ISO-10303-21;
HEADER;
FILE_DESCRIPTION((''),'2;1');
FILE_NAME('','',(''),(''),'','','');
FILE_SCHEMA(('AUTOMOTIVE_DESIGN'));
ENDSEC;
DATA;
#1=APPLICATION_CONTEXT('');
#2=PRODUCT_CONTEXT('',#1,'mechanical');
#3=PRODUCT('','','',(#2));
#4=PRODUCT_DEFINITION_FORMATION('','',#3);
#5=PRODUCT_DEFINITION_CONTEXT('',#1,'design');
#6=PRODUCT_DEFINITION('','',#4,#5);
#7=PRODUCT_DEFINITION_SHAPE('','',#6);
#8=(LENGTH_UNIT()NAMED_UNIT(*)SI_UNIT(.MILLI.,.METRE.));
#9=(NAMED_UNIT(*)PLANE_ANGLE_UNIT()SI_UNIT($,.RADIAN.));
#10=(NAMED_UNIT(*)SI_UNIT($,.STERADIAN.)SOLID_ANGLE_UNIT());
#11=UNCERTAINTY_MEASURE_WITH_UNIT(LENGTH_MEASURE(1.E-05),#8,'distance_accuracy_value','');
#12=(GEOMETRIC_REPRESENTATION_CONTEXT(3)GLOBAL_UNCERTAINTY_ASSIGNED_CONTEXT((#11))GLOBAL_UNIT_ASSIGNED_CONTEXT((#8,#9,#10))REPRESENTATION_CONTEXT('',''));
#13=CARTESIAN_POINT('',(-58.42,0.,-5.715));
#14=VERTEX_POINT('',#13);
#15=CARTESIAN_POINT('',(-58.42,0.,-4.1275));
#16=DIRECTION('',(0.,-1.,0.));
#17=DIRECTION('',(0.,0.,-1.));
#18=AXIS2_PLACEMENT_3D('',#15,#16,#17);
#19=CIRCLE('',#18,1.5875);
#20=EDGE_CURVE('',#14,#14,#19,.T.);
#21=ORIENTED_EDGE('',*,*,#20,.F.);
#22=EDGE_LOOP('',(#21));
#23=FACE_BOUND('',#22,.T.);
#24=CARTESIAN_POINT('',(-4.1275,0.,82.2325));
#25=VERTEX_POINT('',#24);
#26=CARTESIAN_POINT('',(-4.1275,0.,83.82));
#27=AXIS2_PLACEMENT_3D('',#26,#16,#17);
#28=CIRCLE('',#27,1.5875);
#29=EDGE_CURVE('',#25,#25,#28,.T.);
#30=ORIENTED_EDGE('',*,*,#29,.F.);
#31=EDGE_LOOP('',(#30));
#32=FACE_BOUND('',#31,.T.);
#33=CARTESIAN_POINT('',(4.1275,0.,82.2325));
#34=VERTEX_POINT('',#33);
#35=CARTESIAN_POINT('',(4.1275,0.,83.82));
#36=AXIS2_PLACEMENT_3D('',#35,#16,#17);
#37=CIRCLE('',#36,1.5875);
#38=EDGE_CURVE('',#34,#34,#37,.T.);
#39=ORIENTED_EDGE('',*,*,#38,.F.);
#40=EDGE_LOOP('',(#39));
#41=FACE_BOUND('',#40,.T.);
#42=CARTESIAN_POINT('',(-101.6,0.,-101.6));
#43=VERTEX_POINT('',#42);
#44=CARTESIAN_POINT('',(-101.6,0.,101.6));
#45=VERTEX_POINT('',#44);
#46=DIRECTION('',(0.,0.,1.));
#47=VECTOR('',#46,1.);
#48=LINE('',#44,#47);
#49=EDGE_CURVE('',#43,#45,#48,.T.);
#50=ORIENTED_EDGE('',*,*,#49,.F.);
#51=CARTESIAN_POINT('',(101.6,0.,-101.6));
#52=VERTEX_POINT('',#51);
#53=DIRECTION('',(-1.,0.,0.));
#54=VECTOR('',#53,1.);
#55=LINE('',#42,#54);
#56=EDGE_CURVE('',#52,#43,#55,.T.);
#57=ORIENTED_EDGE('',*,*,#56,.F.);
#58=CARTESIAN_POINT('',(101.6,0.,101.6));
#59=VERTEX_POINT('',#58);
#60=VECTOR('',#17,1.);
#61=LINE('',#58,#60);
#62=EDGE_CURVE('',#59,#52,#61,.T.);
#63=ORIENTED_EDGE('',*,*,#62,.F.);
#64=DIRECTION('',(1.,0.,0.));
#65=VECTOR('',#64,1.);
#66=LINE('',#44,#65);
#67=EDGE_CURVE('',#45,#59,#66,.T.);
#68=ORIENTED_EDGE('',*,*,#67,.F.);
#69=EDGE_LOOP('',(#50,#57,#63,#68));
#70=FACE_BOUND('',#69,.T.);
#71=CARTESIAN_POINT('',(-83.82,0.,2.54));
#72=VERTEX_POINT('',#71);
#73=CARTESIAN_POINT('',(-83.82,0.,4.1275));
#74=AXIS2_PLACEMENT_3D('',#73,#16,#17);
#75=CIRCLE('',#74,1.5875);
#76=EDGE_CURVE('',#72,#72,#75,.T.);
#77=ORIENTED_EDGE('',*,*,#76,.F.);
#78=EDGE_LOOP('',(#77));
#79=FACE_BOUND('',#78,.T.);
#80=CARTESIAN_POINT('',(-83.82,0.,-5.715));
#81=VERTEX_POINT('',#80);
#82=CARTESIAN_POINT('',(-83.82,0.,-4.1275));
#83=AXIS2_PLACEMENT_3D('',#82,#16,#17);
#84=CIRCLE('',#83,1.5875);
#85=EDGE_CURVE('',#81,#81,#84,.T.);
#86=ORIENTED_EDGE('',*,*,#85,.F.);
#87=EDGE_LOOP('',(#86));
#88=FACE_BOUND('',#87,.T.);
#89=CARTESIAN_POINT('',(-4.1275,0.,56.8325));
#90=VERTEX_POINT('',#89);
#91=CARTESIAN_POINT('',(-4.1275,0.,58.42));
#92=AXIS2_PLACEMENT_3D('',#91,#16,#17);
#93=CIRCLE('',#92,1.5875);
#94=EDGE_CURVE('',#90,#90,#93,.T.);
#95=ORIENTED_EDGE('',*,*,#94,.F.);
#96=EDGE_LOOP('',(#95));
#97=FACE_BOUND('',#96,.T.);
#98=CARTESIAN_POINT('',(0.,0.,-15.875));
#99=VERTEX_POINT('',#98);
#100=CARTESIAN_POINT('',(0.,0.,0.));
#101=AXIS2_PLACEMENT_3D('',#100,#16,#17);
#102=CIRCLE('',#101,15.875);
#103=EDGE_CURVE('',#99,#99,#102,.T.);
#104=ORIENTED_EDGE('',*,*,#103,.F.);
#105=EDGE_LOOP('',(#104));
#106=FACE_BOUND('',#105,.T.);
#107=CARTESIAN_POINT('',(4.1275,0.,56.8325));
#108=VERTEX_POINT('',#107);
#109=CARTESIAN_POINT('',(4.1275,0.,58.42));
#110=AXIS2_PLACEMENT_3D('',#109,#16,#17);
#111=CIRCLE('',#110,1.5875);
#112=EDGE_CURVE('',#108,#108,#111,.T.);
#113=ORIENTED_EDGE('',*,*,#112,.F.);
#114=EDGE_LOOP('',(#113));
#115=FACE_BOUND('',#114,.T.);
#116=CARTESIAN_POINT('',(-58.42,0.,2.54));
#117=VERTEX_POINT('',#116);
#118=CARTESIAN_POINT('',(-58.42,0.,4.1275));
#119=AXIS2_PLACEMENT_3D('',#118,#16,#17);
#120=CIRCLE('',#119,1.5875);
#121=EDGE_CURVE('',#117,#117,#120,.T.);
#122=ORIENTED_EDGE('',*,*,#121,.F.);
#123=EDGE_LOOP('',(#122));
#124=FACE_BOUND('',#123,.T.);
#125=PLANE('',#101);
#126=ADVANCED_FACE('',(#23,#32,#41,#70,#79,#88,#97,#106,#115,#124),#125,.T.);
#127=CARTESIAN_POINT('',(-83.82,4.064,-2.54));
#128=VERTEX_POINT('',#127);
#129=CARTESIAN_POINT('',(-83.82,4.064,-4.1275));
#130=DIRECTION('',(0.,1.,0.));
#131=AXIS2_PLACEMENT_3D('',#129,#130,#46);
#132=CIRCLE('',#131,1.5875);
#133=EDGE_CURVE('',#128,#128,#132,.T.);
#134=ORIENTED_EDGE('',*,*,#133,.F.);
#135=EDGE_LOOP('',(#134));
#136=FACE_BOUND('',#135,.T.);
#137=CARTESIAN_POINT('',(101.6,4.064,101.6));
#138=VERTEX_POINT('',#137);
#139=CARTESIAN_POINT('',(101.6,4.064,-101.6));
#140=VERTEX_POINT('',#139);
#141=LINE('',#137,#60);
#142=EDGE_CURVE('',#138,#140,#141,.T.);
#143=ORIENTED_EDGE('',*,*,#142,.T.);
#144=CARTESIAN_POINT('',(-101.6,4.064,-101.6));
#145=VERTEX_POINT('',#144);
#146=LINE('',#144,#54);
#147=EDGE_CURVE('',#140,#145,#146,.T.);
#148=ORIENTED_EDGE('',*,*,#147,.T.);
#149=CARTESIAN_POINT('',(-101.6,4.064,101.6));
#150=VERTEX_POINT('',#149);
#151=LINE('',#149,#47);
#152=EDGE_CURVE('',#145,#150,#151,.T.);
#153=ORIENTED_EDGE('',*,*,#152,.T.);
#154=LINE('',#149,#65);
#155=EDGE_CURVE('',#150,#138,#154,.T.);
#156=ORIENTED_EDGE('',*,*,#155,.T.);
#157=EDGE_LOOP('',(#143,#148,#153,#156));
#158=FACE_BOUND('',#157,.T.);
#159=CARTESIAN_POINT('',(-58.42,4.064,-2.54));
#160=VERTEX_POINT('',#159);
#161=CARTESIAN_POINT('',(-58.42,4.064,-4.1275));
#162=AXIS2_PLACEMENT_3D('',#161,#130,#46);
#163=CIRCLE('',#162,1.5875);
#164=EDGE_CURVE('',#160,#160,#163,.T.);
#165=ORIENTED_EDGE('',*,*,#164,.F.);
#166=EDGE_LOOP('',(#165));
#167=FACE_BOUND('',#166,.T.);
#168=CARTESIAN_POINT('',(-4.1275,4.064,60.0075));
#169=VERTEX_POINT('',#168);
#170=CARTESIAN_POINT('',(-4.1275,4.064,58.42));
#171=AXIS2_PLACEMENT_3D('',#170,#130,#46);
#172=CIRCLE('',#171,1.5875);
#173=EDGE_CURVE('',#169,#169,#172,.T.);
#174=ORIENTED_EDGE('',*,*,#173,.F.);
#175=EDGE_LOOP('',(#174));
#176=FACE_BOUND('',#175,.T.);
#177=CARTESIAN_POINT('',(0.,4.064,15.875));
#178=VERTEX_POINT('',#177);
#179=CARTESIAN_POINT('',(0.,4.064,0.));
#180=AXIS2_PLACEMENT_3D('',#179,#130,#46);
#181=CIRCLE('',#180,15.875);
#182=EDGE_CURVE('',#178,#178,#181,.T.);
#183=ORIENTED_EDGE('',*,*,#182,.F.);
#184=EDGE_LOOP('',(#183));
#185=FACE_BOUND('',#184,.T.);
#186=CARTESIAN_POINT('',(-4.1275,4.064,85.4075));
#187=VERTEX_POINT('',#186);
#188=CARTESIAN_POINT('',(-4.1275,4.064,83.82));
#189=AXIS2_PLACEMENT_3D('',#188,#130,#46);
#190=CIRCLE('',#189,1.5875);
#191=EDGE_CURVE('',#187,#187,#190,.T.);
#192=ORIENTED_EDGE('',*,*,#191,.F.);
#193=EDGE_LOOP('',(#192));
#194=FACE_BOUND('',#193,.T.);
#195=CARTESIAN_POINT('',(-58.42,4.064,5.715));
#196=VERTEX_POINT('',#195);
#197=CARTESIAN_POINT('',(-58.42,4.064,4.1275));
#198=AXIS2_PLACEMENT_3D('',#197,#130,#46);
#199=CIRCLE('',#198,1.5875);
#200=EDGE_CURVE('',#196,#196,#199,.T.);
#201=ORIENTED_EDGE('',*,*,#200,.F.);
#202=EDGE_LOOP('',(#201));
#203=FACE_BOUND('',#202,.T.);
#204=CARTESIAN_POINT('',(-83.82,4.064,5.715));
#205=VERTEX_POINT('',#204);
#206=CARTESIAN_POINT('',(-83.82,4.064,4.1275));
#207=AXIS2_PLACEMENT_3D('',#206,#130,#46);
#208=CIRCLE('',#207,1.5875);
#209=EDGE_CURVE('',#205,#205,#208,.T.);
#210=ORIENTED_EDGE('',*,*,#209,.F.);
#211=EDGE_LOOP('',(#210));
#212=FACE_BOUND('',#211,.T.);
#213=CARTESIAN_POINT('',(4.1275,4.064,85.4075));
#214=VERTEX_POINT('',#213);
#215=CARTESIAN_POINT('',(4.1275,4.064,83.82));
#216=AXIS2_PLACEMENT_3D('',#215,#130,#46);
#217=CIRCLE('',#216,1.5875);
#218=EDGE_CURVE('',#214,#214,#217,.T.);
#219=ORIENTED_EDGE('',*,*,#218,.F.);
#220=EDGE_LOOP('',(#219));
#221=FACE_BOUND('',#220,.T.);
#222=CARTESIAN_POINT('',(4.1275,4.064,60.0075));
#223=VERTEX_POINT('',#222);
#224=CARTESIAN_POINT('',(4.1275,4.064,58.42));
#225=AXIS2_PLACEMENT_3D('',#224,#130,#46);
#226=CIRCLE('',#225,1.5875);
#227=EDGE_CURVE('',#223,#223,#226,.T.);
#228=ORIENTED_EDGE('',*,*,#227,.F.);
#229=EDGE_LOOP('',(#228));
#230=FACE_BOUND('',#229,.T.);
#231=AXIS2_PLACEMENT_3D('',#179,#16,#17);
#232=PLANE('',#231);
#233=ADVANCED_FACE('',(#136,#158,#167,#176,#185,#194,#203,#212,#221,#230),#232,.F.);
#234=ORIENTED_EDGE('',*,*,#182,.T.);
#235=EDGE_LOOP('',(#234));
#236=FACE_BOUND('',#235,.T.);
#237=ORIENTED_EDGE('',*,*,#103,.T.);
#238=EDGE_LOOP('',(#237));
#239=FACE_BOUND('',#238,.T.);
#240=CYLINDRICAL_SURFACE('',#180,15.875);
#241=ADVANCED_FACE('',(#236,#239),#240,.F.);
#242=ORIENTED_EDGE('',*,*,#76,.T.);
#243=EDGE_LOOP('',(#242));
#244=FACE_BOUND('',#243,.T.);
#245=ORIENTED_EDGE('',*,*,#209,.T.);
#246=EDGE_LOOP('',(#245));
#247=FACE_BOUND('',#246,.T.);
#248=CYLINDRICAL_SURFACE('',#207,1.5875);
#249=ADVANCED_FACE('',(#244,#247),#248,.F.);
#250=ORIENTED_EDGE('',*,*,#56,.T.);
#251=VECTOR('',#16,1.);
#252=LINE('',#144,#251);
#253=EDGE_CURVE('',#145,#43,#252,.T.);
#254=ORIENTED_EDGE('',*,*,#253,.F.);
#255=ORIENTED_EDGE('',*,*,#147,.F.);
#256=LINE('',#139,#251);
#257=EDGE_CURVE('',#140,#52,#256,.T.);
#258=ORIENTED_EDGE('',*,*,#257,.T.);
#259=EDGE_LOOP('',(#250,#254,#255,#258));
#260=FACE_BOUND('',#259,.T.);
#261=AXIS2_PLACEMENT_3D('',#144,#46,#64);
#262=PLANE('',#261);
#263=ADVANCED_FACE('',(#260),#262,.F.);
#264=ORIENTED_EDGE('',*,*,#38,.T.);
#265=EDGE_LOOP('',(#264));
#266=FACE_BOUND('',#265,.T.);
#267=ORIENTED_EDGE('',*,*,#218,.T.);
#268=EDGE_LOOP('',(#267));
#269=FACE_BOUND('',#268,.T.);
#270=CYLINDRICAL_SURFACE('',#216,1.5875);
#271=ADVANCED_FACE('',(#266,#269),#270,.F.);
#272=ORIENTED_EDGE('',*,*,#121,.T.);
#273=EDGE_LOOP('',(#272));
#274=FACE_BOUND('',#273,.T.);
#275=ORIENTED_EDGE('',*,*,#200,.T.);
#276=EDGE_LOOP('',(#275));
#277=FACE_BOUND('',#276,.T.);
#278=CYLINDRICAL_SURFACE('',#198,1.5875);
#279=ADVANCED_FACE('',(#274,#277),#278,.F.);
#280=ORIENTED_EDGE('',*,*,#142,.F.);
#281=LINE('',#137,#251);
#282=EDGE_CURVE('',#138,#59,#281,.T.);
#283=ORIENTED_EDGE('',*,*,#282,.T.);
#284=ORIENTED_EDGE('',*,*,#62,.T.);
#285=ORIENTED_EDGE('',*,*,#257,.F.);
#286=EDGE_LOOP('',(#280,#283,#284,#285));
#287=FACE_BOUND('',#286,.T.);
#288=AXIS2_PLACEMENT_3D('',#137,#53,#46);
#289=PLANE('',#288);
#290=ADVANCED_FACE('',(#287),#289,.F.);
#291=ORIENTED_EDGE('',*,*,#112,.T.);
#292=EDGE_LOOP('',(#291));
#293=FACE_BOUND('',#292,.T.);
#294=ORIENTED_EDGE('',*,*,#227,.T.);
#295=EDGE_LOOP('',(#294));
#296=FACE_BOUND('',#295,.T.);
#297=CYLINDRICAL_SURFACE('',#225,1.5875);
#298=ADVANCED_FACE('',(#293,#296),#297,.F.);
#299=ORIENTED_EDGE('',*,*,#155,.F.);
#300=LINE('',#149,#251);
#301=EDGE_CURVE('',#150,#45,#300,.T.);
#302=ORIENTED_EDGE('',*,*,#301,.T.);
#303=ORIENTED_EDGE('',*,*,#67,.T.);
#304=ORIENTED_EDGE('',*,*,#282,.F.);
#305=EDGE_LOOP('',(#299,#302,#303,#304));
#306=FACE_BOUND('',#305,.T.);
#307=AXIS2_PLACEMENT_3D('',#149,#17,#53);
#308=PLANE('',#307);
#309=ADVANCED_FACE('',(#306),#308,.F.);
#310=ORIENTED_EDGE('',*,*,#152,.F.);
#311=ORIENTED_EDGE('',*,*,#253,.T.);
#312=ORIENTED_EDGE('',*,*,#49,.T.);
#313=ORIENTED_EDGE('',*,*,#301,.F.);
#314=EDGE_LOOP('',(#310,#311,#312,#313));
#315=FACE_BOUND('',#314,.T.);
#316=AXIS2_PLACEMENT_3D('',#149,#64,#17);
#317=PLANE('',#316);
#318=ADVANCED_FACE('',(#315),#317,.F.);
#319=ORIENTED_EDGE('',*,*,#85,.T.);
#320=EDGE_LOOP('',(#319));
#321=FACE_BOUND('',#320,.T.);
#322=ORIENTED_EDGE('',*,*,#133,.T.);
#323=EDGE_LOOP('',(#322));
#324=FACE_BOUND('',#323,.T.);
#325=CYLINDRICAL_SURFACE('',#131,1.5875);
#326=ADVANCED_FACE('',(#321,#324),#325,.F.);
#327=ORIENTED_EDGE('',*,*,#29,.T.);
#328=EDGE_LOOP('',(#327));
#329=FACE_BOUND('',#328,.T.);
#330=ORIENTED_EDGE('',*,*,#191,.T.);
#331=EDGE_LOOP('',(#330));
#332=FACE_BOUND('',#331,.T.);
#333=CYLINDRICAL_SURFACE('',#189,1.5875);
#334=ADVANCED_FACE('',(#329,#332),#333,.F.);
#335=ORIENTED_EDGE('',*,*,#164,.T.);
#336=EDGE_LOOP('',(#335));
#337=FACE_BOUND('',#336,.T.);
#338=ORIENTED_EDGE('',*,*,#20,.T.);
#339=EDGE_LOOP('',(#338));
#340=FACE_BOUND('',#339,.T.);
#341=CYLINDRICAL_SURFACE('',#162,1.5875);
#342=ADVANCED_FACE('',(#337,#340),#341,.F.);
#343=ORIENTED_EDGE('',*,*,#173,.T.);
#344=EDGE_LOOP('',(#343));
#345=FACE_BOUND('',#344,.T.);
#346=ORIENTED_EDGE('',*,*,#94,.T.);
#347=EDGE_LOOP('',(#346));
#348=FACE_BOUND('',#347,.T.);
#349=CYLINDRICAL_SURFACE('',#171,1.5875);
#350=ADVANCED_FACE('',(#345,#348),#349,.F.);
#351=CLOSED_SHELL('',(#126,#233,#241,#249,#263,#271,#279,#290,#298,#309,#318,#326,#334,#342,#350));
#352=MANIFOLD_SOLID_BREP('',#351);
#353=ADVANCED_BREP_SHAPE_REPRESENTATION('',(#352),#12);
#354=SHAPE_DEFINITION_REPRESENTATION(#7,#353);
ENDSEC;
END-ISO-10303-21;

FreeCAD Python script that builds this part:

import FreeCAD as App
import Part
import Sketcher
from FreeCAD import Vector
Q = App.Units.Quantity

doc = App.newDocument("Part")
params = doc.addObject("Spreadsheet::Sheet", "Params")
for row, (alias, value) in enumerate([
    ("sketch1_width", "8 in"),
    ("pad1_length", "0.16 in"),
    ("sketch2_diameter", "0.125 in"),
    ("hole_diameter", "0.125 in"),
    ("hole_depth", "1 in"),
    ("sketch3_diameter", "1.25 in"),
    ("hole2_diameter", "1.25 in"),
    ("hole2_depth", "1 in"),
], start=1):
    params.set(f"A{row}", alias)
    params.set(f"B{row}", "=" + value)
    params.setAlias(f"B{row}", alias)

body = doc.addObject("PartDesign::Body", "Body")

# Sketch on XZ plane
sketch1 = body.newObject("Sketcher::SketchObject", "Sketch")
sketch1.AttachmentSupport = (doc.getObject("XZ_Plane"), [""])
sketch1.MapMode = "FlatFace"
sketch1.addGeometry(Part.LineSegment(Vector(-101.6, -101.6, 0), Vector(-101.6, 101.6, 0)), False)
sketch1.addGeometry(Part.LineSegment(Vector(-101.6, 101.6, 0), Vector(101.6, 101.6, 0)), False)
sketch1.addGeometry(Part.LineSegment(Vector(101.6, 101.6, 0), Vector(101.6, -101.6, 0)), False)
sketch1.addGeometry(Part.LineSegment(Vector(101.6, -101.6, 0), Vector(-101.6, -101.6, 0)), False)
sketch1.addConstraint(Sketcher.Constraint("Coincident", 0, 2, 1, 1))
sketch1.addConstraint(Sketcher.Constraint("Coincident", 1, 2, 2, 1))
sketch1.addConstraint(Sketcher.Constraint("Coincident", 2, 2, 3, 1))
sketch1.addConstraint(Sketcher.Constraint("Coincident", 3, 2, 0, 1))
sketch1.addConstraint(Sketcher.Constraint("Vertical", 0))
sketch1.addConstraint(Sketcher.Constraint("Horizontal", 1))
sketch1.addConstraint(Sketcher.Constraint("Vertical", 2))
sketch1.addConstraint(Sketcher.Constraint("Horizontal", 3))
sketch1.addConstraint(Sketcher.Constraint("Symmetric", 0, 2, 2, 2, -1, 1))
sketch1.addConstraint(Sketcher.Constraint("Equal", 3, 0))
sketch1.addConstraint(Sketcher.Constraint("DistanceX", 1, 1, 1, 2, Q("8 in")))
sketch1.setExpression("Constraints[10]", "Params.sketch1_width")
pad1 = body.newObject("PartDesign::Pad", "Pad")
pad1.Profile = sketch1
pad1.setExpression("Length", "Params.pad1_length")
pad1.Reversed = True

# Sketch on XZ plane
sketch2 = body.newObject("Sketcher::SketchObject", "Sketch001")
sketch2.AttachmentSupport = (doc.getObject("XZ_Plane"), [""])
sketch2.MapMode = "FlatFace"
sketch2.AttachmentOffset = App.Placement(Vector(0, 0, -0.16 * 25.4), App.Rotation())
sketch2.addGeometry(Part.Circle(Vector(-83.82, -4.1275, 0), Vector(0, 0, 1), 1.5875), False)
sketch2.addGeometry(Part.Circle(Vector(-58.42, -4.1275, 0), Vector(0, 0, 1), 1.5875), False)
sketch2.addGeometry(Part.Circle(Vector(-58.42, 4.1275, 0), Vector(0, 0, 1), 1.5875), False)
sketch2.addGeometry(Part.Circle(Vector(-83.82, 4.1275, 0), Vector(0, 0, 1), 1.5875), False)
sketch2.addGeometry(Part.Circle(Vector(-4.1275, 83.82, 0), Vector(0, 0, 1), 1.5875), False)
sketch2.addGeometry(Part.Circle(Vector(-4.1275, 58.42, 0), Vector(0, 0, 1), 1.5875), False)
sketch2.addGeometry(Part.Circle(Vector(4.1275, 58.42, 0), Vector(0, 0, 1), 1.5875), False)
sketch2.addGeometry(Part.Circle(Vector(4.1275, 83.82, 0), Vector(0, 0, 1), 1.5875), False)
sketch2.addConstraint(Sketcher.Constraint("Equal", 0, 1))
sketch2.addConstraint(Sketcher.Constraint("Equal", 1, 2))
sketch2.addConstraint(Sketcher.Constraint("Equal", 2, 3))
sketch2.addConstraint(Sketcher.Constraint("Equal", 3, 4))
sketch2.addConstraint(Sketcher.Constraint("Equal", 4, 5))
sketch2.addConstraint(Sketcher.Constraint("Equal", 5, 6))
sketch2.addConstraint(Sketcher.Constraint("Equal", 6, 7))
sketch2.addConstraint(Sketcher.Constraint("Symmetric", 5, 3, 6, 3, -2))
sketch2.addConstraint(Sketcher.Constraint("Symmetric", 4, 3, 7, 3, -2))
sketch2.addConstraint(Sketcher.Constraint("Symmetric", 1, 3, 2, 3, -1))
sketch2.addConstraint(Sketcher.Constraint("Symmetric", 0, 3, 3, 3, -1))
sketch2.addConstraint(Sketcher.Constraint("Horizontal", 0, 3, 1, 3))
sketch2.addConstraint(Sketcher.Constraint("Vertical", 4, 3, 5, 3))
sketch2.addConstraint(Sketcher.Constraint("Diameter", 0, Q("0.125 in")))
sketch2.addConstraint(Sketcher.Constraint("DistanceX", 0, 3, 1, 3, Q("1 in")))
sketch2.addConstraint(Sketcher.Constraint("DistanceY", 5, 3, 4, 3, Q("1 in")))
sketch2.addConstraint(Sketcher.Constraint("DistanceX", 0, 3, -1, 1, Q("3.3 in")))
sketch2.addConstraint(Sketcher.Constraint("DistanceY", -1, 1, 4, 3, Q("3.3 in")))
sketch2.addConstraint(Sketcher.Constraint("DistanceY", 1, 3, 2, 3, Q("0.325 in")))
sketch2.addConstraint(Sketcher.Constraint("DistanceX", 5, 3, 6, 3, Q("0.325 in")))
sketch2.setExpression("Constraints[13]", "Params.sketch2_diameter")
doc.recompute()
hole = body.newObject("PartDesign::Hole", "Hole")
hole.Profile = sketch2
hole.ThreadType = "None"
hole.setExpression("Diameter", "Params.hole_diameter")
hole.DepthType = "Dimension"
hole.setExpression("Depth", "Params.hole_depth")
hole.DrillPoint = "Angled"
hole.DrillPointAngle = 118
hole.Reversed = True

# Sketch on XZ plane
sketch3 = body.newObject("Sketcher::SketchObject", "Sketch002")
sketch3.AttachmentSupport = (doc.getObject("XZ_Plane"), [""])
sketch3.MapMode = "FlatFace"
sketch3.AttachmentOffset = App.Placement(Vector(0, 0, -0.16 * 25.4), App.Rotation())
sketch3.addGeometry(Part.Circle(Vector(0, 0, 0), Vector(0, 0, 1), 15.875), False)
sketch3.addConstraint(Sketcher.Constraint("Coincident", 0, 3, -1, 1))
sketch3.addConstraint(Sketcher.Constraint("Diameter", 0, Q("1.25 in")))
sketch3.setExpression("Constraints[1]", "Params.sketch3_diameter")
doc.recompute()
hole2 = body.newObject("PartDesign::Hole", "Hole001")
hole2.Profile = sketch3
hole2.ThreadType = "None"
hole2.setExpression("Diameter", "Params.hole2_diameter")
hole2.DepthType = "Dimension"
hole2.setExpression("Depth", "Params.hole2_depth")
hole2.DrillPoint = "Angled"
hole2.DrillPointAngle = 118
hole2.Reversed = True

doc.recompute()
